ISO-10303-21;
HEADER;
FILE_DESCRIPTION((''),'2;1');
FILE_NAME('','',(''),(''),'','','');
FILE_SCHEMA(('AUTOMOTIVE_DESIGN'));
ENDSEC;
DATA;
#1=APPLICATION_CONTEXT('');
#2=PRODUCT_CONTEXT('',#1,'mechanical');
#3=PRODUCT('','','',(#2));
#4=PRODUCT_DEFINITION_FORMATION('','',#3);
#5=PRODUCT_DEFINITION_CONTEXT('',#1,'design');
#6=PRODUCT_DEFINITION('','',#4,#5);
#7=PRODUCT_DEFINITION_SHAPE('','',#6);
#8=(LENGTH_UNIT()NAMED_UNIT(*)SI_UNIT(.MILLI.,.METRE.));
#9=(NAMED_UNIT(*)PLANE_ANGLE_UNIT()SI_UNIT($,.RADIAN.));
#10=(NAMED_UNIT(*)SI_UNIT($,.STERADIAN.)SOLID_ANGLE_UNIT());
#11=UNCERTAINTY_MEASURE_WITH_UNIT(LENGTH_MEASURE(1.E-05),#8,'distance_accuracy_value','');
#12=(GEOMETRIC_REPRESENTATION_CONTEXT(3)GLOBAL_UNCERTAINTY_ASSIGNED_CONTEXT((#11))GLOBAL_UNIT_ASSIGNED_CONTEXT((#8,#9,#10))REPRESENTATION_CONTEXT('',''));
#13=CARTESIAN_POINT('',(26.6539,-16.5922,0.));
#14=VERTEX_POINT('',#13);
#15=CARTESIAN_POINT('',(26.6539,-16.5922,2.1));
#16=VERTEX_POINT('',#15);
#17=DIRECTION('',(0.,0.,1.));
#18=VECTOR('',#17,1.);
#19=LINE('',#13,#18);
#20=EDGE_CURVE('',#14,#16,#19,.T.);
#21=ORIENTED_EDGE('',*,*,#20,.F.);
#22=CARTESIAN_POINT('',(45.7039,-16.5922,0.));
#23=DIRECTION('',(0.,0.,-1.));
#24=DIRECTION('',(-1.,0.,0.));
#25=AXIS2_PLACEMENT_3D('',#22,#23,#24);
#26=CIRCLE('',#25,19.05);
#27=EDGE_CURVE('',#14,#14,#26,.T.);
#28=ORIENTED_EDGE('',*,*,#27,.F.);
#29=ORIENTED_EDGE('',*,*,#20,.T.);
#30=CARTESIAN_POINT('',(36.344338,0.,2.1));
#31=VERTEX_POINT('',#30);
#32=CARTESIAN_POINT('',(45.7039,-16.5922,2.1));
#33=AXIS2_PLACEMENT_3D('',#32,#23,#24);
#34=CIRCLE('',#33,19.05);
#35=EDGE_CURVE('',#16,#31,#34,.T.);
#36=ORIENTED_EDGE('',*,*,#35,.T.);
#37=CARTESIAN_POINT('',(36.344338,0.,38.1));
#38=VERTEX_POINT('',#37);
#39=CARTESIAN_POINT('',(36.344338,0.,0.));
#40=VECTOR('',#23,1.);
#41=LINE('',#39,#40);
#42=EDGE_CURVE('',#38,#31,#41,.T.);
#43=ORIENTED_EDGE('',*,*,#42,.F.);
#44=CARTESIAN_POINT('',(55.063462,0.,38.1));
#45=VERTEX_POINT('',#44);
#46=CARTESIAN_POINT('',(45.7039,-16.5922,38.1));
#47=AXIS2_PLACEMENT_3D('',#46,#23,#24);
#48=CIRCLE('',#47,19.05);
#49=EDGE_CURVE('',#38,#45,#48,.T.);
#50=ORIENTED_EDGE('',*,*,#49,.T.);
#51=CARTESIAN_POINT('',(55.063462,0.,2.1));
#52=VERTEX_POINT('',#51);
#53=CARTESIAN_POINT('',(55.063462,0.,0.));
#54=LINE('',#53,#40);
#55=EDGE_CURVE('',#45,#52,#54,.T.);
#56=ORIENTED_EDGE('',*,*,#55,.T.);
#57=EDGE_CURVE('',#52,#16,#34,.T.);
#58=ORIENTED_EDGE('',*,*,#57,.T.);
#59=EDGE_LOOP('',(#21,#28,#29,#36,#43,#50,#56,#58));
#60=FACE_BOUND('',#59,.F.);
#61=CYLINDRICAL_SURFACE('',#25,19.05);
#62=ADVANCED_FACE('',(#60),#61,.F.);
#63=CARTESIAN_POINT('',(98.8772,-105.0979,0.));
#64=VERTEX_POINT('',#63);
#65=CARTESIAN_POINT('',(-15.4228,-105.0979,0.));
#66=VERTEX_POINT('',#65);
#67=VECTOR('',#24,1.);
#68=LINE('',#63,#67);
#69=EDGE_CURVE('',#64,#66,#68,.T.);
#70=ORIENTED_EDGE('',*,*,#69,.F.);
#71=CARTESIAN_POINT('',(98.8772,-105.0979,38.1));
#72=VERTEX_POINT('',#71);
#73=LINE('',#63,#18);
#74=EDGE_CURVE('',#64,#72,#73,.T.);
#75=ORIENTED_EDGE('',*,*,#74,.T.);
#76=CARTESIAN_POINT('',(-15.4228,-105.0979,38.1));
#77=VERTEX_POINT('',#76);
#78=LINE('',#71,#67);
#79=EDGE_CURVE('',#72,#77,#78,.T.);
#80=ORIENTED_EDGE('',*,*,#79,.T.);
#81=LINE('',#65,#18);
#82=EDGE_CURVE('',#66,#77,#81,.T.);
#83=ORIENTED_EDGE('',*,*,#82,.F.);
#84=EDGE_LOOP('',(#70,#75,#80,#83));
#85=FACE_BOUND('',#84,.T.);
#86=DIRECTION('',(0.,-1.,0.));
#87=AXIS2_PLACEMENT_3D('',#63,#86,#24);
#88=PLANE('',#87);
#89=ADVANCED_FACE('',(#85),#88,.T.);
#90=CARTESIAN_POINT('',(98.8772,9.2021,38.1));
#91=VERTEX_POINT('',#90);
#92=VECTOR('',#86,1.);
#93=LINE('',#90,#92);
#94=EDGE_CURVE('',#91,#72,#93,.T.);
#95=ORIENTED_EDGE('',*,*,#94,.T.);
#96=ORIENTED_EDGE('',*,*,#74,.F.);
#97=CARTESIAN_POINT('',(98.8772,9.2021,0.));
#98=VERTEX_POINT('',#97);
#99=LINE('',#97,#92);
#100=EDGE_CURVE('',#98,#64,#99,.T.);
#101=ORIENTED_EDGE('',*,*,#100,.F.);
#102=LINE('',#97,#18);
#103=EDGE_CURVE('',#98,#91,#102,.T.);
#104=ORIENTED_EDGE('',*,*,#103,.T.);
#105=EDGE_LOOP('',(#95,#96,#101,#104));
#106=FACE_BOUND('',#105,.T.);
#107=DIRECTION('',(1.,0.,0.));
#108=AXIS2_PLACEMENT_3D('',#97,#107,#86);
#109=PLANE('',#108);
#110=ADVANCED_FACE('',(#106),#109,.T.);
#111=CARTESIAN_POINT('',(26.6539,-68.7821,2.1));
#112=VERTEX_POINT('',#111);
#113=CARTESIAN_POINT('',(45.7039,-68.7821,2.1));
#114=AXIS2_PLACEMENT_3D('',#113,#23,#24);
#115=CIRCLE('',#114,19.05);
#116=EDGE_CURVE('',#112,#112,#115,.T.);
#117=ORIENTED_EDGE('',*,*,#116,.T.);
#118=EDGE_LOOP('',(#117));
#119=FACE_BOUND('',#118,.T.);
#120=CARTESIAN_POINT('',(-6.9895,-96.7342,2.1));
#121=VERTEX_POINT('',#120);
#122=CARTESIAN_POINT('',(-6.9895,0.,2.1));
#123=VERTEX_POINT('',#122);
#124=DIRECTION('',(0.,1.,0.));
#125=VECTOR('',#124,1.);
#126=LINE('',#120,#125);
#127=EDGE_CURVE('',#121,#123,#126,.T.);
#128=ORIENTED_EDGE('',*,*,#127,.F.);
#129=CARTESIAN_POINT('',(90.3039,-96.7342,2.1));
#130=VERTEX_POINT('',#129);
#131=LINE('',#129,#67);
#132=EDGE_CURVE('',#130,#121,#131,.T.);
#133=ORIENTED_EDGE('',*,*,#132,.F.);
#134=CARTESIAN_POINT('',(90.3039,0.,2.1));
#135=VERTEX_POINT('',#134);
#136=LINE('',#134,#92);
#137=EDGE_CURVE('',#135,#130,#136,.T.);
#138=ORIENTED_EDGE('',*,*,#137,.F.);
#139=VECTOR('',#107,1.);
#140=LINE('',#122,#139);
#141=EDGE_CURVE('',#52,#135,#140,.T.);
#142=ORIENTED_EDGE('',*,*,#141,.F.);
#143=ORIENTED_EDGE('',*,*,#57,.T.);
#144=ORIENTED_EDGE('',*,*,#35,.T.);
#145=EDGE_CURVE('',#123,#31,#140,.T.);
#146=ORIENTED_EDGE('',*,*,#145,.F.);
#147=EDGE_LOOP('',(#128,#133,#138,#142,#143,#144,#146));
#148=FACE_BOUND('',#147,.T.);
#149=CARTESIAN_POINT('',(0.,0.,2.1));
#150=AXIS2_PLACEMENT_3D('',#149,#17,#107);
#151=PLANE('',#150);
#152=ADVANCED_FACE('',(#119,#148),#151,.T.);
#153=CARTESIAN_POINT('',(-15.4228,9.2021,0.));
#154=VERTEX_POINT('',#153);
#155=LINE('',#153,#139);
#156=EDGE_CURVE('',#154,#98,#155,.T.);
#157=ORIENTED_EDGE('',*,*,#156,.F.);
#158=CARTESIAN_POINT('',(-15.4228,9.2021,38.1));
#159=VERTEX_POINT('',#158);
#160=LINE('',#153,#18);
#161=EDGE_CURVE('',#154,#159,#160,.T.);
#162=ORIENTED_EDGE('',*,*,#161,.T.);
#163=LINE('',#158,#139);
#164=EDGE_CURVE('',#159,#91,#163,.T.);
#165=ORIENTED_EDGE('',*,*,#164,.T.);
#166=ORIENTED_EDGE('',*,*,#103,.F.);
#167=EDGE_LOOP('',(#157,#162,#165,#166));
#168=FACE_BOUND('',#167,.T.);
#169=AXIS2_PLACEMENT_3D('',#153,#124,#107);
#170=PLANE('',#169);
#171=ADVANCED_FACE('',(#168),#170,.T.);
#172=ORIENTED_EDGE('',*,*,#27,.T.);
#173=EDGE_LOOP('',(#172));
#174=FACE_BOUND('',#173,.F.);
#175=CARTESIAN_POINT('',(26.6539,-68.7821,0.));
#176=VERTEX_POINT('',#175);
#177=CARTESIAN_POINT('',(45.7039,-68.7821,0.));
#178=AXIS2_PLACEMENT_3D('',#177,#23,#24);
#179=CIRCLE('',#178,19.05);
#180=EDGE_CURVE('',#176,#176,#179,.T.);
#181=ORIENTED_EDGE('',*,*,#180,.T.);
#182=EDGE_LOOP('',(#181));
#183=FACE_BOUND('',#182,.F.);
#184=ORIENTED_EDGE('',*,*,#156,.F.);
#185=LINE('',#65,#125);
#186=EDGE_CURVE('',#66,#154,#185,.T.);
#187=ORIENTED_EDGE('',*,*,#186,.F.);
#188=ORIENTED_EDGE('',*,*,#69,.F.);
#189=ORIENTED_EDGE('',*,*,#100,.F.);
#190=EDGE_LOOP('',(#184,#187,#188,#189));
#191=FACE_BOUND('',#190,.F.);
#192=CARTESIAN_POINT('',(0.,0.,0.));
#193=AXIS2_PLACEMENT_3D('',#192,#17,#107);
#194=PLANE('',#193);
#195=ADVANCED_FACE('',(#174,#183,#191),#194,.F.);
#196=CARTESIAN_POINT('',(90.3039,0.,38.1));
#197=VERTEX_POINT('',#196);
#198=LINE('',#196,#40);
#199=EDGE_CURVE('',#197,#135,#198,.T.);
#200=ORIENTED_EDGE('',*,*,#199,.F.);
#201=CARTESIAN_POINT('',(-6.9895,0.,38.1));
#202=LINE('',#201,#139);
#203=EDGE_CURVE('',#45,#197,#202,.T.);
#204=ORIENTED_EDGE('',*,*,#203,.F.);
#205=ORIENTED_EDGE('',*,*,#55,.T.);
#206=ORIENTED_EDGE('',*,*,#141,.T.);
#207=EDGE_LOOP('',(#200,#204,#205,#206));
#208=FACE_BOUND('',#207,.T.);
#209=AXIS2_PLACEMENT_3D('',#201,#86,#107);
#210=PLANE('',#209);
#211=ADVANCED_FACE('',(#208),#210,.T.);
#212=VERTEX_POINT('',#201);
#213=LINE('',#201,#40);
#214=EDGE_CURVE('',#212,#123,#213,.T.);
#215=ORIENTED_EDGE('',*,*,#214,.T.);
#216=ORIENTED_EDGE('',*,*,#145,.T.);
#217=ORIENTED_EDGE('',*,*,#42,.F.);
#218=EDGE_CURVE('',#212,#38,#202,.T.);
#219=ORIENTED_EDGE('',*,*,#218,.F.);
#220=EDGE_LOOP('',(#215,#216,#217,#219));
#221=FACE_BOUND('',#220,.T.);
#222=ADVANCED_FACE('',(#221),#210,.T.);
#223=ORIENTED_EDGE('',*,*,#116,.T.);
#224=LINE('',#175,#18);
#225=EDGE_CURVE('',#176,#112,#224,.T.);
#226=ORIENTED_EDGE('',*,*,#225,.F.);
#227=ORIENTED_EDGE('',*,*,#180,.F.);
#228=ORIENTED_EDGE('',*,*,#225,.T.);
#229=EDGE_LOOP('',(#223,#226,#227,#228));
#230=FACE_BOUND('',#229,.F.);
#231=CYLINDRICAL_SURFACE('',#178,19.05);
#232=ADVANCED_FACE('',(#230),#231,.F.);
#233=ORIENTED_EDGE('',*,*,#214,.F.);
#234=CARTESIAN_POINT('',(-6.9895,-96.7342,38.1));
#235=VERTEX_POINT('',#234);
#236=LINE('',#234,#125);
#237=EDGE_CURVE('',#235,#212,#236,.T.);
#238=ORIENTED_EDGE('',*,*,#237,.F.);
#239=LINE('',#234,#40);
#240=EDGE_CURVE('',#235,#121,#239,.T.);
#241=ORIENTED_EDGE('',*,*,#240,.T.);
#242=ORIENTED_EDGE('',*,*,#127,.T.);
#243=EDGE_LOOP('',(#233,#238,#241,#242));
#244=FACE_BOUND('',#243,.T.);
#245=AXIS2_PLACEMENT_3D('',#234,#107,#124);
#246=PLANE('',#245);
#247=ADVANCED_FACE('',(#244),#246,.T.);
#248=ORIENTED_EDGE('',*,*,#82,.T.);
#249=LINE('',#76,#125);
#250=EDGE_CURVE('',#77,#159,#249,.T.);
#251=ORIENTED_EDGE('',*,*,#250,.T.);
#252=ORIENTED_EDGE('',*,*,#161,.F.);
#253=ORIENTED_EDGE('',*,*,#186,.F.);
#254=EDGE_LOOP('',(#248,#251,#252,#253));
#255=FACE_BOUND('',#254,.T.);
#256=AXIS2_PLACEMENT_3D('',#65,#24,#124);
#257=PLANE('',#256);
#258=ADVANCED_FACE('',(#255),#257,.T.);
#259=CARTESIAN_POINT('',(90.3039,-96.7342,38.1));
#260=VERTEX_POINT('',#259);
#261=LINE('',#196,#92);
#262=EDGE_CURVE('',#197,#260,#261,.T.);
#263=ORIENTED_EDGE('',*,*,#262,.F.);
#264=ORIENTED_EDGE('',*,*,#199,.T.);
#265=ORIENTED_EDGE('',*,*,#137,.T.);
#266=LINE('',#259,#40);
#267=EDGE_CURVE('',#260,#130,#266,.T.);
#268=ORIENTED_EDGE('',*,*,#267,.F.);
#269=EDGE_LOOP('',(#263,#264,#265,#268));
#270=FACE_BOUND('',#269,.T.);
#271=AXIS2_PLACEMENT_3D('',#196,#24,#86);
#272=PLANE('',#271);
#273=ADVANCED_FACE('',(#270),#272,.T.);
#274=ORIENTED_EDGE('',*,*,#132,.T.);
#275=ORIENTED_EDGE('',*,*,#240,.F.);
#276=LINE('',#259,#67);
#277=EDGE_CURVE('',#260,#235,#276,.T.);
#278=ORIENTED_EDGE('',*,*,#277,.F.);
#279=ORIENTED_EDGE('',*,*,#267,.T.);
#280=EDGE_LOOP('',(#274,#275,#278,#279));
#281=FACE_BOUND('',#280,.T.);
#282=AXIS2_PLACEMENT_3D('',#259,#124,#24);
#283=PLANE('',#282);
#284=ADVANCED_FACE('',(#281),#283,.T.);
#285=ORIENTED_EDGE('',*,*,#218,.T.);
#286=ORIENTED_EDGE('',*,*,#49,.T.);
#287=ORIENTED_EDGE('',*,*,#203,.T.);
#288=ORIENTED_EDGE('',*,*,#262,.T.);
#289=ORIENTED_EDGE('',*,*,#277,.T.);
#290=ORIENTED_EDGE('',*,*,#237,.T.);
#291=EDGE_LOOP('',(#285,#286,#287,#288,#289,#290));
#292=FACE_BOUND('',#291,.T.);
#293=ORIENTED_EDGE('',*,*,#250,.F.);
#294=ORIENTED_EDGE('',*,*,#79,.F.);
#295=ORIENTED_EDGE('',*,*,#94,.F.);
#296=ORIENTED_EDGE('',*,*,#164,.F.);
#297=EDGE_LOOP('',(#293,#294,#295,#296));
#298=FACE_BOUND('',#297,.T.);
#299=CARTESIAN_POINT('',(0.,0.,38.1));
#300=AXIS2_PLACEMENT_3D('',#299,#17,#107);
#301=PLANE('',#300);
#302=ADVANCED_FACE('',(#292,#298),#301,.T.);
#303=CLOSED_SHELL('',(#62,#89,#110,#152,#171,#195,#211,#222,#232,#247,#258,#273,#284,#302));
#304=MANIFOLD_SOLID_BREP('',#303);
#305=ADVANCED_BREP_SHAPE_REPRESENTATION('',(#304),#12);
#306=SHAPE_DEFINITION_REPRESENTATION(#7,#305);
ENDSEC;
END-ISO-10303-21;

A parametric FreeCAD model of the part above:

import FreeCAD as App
import Part
import Sketcher
Q = App.Units.Quantity


def add_polygon(sketch, points):
    """Adds a closed chain of lines whose ends are joined by coincident constraints."""
    first, n = sketch.GeometryCount, len(points)
    for a, b in zip(points, points[1:] + points[:1]):
        sketch.addGeometry(Part.LineSegment(App.Vector(*a, 0), App.Vector(*b, 0)), False)
    for i in range(n):
        sketch.addConstraint(Sketcher.Constraint("Coincident", first + i, 2, first + (i + 1) % n, 1))

doc = App.newDocument("Part")
params = doc.addObject("Spreadsheet::Sheet", "Params")
for row, (alias, value) in enumerate([
    ("sketch1_width", "114.3 mm"),
    ("pad1_length", "38.1 mm"),
    ("pocket1_length", "36 mm"),
    ("sketch3_diameter", "38.1 mm"),
], start=1):
    params.set(f"A{row}", alias)
    params.set(f"B{row}", "=" + value)
    params.setAlias(f"B{row}", alias)

body = doc.addObject("PartDesign::Body", "Body")

sketch1 = doc.addObject("Sketcher::SketchObject", "Sketch")
body.addObject(sketch1)
sketch1.AttachmentSupport = (doc.XY_Plane, [""])
sketch1.MapMode = "FlatFace"
add_polygon(sketch1, [(99, 9), (-15, 9), (-15, -105), (99, -105)])
sketch1.addConstraint([
    Sketcher.Constraint("Horizontal", 0),
    Sketcher.Constraint("Vertical", 1),
    Sketcher.Constraint("Horizontal", 2),
    Sketcher.Constraint("Vertical", 3),
    Sketcher.Constraint("Equal", 2, 1),
    Sketcher.Constraint("DistanceX", 0, 2, 0, 1, Q("114.3 mm")),
    Sketcher.Constraint("DistanceY", -1, 1, 0, 2, Q("9.202 mm")),
    Sketcher.Constraint("DistanceX", 0, 2, -1, 1, Q("15.4228 mm")),
])
sketch1.setExpression("Constraints[9]", "Params.sketch1_width")
pad1 = doc.addObject("PartDesign::Pad", "Pad")
body.addObject(pad1)
pad1.Profile = sketch1
pad1.setExpression("Length", "Params.pad1_length")

sketch2 = doc.addObject("Sketcher::SketchObject", "Sketch001")
body.addObject(sketch2)
sketch2.AttachmentSupport = (doc.XY_Plane, [""])
sketch2.MapMode = "FlatFace"
sketch2.AttachmentOffset = App.Placement(App.Vector(0, 0, 38.1), App.Rotation())
add_polygon(sketch2, [(90, 0), (-7, 0), (-7, -97), (90, -97)])
sketch2.addConstraint([
    Sketcher.Constraint("Horizontal", 0),
    Sketcher.Constraint("Vertical", 1),
    Sketcher.Constraint("Horizontal", 2),
    Sketcher.Constraint("Vertical", 3),
    Sketcher.Constraint("PointOnObject", 0, 2, -1),
    Sketcher.Constraint("DistanceX", 0, 2, 0, 1, Q("97.2934 mm")),
    Sketcher.Constraint("DistanceY", 1, 2, 1, 1, Q("96.7342 mm")),
    Sketcher.Constraint("DistanceX", -1, 1, 2, 2, Q("90.304 mm")),
])
pocket1 = doc.addObject("PartDesign::Pocket", "Pocket")
body.addObject(pocket1)
pocket1.Profile = sketch2
pocket1.setExpression("Length", "Params.pocket1_length")

sketch3 = doc.addObject("Sketcher::SketchObject", "Sketch002")
body.addObject(sketch3)
sketch3.AttachmentSupport = (doc.XY_Plane, [""])
sketch3.MapMode = "FlatFace"
sketch3.addGeometry([
    Part.Circle(App.Vector(46, -17, 0), App.Vector(0, 0, 1), 19),
    Part.Circle(App.Vector(46, -69, 0), App.Vector(0, 0, 1), 19),
], False)
sketch3.addConstraint([
    Sketcher.Constraint("Equal", 0, 1),
    Sketcher.Constraint("Vertical", 0, 3, 1, 3),
    Sketcher.Constraint("Diameter", 0, Q("38.1 mm")),
    Sketcher.Constraint("DistanceY", 1, 3, 0, 3, Q("52.19 mm")),
    Sketcher.Constraint("DistanceX", -1, 1, 0, 3, Q("45.704 mm")),
    Sketcher.Constraint("DistanceY", 1, 3, -1, 1, Q("68.782 mm")),
])
sketch3.setExpression("Constraints[2]", "Params.sketch3_diameter")
pocket2 = doc.addObject("PartDesign::Pocket", "Pocket001")
body.addObject(pocket2)
pocket2.Profile = sketch3
pocket2.Type = "ThroughAll"
pocket2.Reversed = True

doc.recompute()
